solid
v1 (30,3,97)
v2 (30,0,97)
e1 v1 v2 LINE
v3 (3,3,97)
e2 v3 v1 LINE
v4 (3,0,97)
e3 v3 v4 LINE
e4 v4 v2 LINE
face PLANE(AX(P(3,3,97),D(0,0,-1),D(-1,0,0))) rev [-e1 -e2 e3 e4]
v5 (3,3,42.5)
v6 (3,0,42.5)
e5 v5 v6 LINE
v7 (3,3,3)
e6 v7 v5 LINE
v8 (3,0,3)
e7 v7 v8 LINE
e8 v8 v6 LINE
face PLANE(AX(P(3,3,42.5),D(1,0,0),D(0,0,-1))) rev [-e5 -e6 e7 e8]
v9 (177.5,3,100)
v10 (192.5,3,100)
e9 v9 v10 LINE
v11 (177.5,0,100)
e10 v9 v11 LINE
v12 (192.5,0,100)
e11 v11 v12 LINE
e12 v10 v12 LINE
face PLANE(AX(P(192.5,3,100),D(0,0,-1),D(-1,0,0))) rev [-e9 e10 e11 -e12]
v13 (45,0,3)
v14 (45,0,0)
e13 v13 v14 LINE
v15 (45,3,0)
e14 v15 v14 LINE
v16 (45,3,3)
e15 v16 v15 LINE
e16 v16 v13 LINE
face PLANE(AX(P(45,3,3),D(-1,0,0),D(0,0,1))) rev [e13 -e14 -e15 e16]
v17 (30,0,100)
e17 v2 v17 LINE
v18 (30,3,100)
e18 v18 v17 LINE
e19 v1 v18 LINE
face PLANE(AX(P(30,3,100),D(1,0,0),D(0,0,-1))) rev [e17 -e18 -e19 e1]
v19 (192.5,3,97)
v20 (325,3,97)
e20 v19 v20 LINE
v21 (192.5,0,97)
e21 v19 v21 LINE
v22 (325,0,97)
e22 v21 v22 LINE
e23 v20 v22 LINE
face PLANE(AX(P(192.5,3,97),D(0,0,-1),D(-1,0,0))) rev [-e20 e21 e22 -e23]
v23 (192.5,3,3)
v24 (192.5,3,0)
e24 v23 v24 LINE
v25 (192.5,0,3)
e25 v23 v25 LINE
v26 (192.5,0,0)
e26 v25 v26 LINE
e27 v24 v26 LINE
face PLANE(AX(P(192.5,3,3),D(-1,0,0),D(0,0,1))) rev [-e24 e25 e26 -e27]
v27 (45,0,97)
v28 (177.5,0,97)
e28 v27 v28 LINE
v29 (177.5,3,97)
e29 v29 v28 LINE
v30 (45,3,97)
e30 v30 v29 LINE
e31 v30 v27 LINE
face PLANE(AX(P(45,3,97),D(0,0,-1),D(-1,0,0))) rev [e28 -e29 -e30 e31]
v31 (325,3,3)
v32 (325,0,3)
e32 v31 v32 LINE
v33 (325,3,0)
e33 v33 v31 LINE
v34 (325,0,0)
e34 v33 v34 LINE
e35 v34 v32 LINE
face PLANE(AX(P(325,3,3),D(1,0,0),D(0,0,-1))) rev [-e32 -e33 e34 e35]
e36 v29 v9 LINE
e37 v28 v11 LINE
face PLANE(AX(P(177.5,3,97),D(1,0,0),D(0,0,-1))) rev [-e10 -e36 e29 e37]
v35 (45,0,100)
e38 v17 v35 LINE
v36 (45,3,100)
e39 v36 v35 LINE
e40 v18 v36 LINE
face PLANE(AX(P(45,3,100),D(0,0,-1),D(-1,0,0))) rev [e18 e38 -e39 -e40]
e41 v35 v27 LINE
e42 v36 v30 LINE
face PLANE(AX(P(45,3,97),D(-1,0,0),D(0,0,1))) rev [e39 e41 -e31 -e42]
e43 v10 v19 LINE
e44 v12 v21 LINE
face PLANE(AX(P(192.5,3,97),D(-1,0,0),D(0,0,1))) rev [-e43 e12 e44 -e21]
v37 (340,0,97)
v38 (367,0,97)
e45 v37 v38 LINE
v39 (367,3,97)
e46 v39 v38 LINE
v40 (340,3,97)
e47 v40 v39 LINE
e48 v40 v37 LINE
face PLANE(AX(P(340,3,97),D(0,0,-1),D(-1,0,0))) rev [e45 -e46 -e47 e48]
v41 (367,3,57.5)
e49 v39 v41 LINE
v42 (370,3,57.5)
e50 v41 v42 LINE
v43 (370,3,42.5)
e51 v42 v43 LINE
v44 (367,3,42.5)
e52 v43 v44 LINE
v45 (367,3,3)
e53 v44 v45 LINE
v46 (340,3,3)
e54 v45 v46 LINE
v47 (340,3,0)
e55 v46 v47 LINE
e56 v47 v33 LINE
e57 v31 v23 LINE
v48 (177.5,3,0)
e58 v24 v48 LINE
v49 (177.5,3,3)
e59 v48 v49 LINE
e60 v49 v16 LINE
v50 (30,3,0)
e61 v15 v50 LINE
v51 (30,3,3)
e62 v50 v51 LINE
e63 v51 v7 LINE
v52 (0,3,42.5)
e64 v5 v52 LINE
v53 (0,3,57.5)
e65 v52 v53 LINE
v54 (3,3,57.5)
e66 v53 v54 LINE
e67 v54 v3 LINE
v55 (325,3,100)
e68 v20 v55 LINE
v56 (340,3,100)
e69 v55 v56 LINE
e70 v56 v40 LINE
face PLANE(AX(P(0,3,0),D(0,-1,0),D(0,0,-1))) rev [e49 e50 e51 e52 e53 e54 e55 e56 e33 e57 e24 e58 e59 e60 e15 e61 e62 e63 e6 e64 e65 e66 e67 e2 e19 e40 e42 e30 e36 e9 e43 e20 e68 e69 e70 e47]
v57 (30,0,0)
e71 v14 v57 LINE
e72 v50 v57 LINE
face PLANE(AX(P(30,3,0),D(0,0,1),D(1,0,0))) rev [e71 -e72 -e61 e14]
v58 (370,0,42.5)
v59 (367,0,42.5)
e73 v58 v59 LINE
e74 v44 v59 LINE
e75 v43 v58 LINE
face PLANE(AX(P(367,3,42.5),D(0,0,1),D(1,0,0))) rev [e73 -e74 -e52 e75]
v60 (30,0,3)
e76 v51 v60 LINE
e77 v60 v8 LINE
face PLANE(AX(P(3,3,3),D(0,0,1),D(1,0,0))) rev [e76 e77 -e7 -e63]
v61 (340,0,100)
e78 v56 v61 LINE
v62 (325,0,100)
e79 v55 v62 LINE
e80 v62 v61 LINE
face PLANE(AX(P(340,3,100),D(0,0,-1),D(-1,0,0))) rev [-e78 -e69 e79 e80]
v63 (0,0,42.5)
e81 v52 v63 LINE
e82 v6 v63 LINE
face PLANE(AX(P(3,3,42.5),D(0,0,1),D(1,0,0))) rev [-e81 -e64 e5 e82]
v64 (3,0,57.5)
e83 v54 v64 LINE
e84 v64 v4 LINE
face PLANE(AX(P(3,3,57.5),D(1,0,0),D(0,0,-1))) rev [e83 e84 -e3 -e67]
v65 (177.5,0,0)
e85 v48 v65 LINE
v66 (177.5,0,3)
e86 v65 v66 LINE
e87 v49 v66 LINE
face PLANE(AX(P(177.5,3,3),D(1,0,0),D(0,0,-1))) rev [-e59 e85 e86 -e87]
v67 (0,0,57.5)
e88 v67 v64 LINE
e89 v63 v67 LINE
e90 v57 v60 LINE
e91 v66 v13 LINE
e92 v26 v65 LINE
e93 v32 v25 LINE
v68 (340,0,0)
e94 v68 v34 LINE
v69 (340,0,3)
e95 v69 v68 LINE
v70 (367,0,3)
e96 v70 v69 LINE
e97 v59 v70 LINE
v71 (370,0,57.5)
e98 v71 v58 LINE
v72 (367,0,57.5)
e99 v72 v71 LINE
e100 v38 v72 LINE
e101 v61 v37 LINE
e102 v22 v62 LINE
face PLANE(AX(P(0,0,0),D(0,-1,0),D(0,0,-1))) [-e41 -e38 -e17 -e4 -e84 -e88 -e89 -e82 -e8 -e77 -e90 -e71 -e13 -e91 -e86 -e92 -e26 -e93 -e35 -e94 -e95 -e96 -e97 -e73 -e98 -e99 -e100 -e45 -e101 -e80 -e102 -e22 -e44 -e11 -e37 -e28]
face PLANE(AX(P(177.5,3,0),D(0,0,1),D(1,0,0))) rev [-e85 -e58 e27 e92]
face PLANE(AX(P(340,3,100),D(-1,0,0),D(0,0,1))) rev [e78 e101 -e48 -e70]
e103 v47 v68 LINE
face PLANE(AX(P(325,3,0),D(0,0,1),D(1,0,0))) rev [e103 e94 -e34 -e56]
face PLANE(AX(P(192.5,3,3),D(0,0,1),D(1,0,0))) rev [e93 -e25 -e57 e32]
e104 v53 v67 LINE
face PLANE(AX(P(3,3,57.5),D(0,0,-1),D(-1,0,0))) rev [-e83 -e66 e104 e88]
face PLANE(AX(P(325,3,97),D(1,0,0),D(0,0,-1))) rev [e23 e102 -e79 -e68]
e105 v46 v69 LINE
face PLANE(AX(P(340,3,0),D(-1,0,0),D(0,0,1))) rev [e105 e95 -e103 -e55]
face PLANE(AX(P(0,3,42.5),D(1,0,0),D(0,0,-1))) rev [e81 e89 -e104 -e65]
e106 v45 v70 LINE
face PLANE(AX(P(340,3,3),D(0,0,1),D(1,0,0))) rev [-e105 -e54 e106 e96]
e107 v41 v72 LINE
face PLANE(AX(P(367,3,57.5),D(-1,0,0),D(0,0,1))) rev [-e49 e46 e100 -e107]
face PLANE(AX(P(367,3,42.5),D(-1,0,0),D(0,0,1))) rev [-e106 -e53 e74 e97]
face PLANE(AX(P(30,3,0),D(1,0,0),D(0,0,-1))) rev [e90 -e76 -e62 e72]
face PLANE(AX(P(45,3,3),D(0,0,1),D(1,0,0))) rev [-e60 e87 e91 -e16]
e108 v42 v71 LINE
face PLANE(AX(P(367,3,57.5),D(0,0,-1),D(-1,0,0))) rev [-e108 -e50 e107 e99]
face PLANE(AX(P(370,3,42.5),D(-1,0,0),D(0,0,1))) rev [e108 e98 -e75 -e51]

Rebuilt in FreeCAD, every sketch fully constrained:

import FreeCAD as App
import Part
import Sketcher


def add_polygon(sketch, points):
    """Adds a closed chain of lines whose ends are joined by coincident constraints."""
    first, n = sketch.GeometryCount, len(points)
    for a, b in zip(points, points[1:] + points[:1]):
        sketch.addGeometry(Part.LineSegment(App.Vector(*a, 0), App.Vector(*b, 0)), False)
    for i in range(n):
        sketch.addConstraint(Sketcher.Constraint("Coincident", first + i, 2, first + (i + 1) % n, 1))

doc = App.newDocument("Part")
body = doc.addObject("PartDesign::Body", "Body")

sketch1 = body.newObject("Sketcher::SketchObject", "Sketch")
sketch1.AttachmentSupport = (doc.getObject("XZ_Plane"), [""])
sketch1.MapMode = "FlatFace"
add_polygon(sketch1, [(340, 100), (340, 97), (367, 97), (367, 57.5), (370, 57.5), (370, 42.5), (367, 42.5), (367, 3), (340, 3), (340, 0), (325, 0), (325, 3), (192.5, 3), (192.5, 0), (177.5, 0), (177.5, 3), (45, 3), (45, 0), (30, 0), (30, 3), (3, 3), (3, 42.5), (0, 42.5), (0, 57.5), (3, 57.5), (3, 97), (30, 97), (30, 100), (45, 100), (45, 97), (177.5, 97), (177.5, 100), (192.5, 100), (192.5, 97), (325, 97), (325, 100)])
sketch1.addConstraint(Sketcher.Constraint("Vertical", 0))
sketch1.addConstraint(Sketcher.Constraint("Horizontal", 1))
sketch1.addConstraint(Sketcher.Constraint("Vertical", 2))
sketch1.addConstraint(Sketcher.Constraint("Horizontal", 3))
sketch1.addConstraint(Sketcher.Constraint("Vertical", 4))
sketch1.addConstraint(Sketcher.Constraint("Horizontal", 5))
sketch1.addConstraint(Sketcher.Constraint("Vertical", 6))
sketch1.addConstraint(Sketcher.Constraint("Horizontal", 7))
sketch1.addConstraint(Sketcher.Constraint("Vertical", 8))
sketch1.addConstraint(Sketcher.Constraint("Horizontal", 9))
sketch1.addConstraint(Sketcher.Constraint("Vertical", 10))
sketch1.addConstraint(Sketcher.Constraint("Horizontal", 11))
sketch1.addConstraint(Sketcher.Constraint("Vertical", 12))
sketch1.addConstraint(Sketcher.Constraint("Horizontal", 13))
sketch1.addConstraint(Sketcher.Constraint("Vertical", 14))
sketch1.addConstraint(Sketcher.Constraint("Horizontal", 15))
sketch1.addConstraint(Sketcher.Constraint("Vertical", 16))
sketch1.addConstraint(Sketcher.Constraint("Horizontal", 17))
sketch1.addConstraint(Sketcher.Constraint("Vertical", 18))
sketch1.addConstraint(Sketcher.Constraint("Horizontal", 19))
sketch1.addConstraint(Sketcher.Constraint("Vertical", 20))
sketch1.addConstraint(Sketcher.Constraint("Horizontal", 21))
sketch1.addConstraint(Sketcher.Constraint("Vertical", 22))
sketch1.addConstraint(Sketcher.Constraint("Horizontal", 23))
sketch1.addConstraint(Sketcher.Constraint("Vertical", 24))
sketch1.addConstraint(Sketcher.Constraint("Horizontal", 25))
sketch1.addConstraint(Sketcher.Constraint("Vertical", 26))
sketch1.addConstraint(Sketcher.Constraint("Horizontal", 27))
sketch1.addConstraint(Sketcher.Constraint("Vertical", 28))
sketch1.addConstraint(Sketcher.Constraint("Horizontal", 29))
sketch1.addConstraint(Sketcher.Constraint("Vertical", 30))
sketch1.addConstraint(Sketcher.Constraint("Horizontal", 31))
sketch1.addConstraint(Sketcher.Constraint("Vertical", 32))
sketch1.addConstraint(Sketcher.Constraint("Horizontal", 33))
sketch1.addConstraint(Sketcher.Constraint("Vertical", 34))
sketch1.addConstraint(Sketcher.Constraint("Horizontal", 35))
sketch1.addConstraint(Sketcher.Constraint("PointOnObject", 8, 2, -1))
sketch1.addConstraint(Sketcher.Constraint("PointOnObject", 12, 2, -1))
sketch1.addConstraint(Sketcher.Constraint("PointOnObject", 16, 2, -1))
sketch1.addConstraint(Sketcher.Constraint("PointOnObject", 21, 2, -2))
sketch1.addConstraint(Sketcher.Constraint("Horizontal", 7, 2, 10, 2))
sketch1.addConstraint(Sketcher.Constraint("Horizontal", 11, 2, 14, 2))
sketch1.addConstraint(Sketcher.Constraint("Horizontal", 15, 2, 18, 2))
sketch1.addConstraint(Sketcher.Constraint("Horizontal", 5, 2, 20, 2))
sketch1.addConstraint(Sketcher.Constraint("Horizontal", 3, 2, 22, 2))
sketch1.addConstraint(Sketcher.Constraint("Horizontal", 1, 2, 24, 2))
sketch1.addConstraint(Sketcher.Constraint("Horizontal", 25, 2, 28, 2))
sketch1.addConstraint(Sketcher.Constraint("Horizontal", 27, 2, 30, 2))
sketch1.addConstraint(Sketcher.Constraint("Horizontal", 29, 2, 32, 2))
sketch1.addConstraint(Sketcher.Constraint("Horizontal", 31, 2, 34, 2))
sketch1.addConstraint(Sketcher.Constraint("Vertical", 2, 2, 5, 2))
sketch1.addConstraint(Sketcher.Constraint("Vertical", 0, 2, 7, 2))
sketch1.addConstraint(Sketcher.Constraint("Vertical", 20, 2, 23, 2))
sketch1.addConstraint(Sketcher.Constraint("Vertical", 18, 2, 25, 2))
sketch1.addConstraint(Sketcher.Constraint("Vertical", 16, 2, 27, 2))
sketch1.addConstraint(Sketcher.Constraint("Vertical", 14, 2, 29, 2))
sketch1.addConstraint(Sketcher.Constraint("Vertical", 12, 2, 31, 2))
sketch1.addConstraint(Sketcher.Constraint("Vertical", 10, 2, 33, 2))
sketch1.addConstraint(Sketcher.Constraint("Equal", 9, 13))
sketch1.addConstraint(Sketcher.Constraint("Equal", 11, 15))
sketch1.addConstraint(Sketcher.Constraint("Equal", 13, 17))
sketch1.addConstraint(Sketcher.Constraint("Equal", 7, 19))
sketch1.addConstraint(Sketcher.Constraint("Equal", 5, 21))
sketch1.addConstraint(Sketcher.Constraint("Equal", 23, 0))
sketch1.addConstraint(Sketcher.Constraint("Equal", 35, 4))
sketch1.addConstraint(Sketcher.Constraint("Equal", 2, 6))
sketch1.addConstraint(Sketcher.Constraint("Equal", 0, 8))
sketch1.addConstraint(Sketcher.Constraint("DistanceX", 1, 1, 1, 2, 27.0))
sketch1.addConstraint(Sketcher.Constraint("DistanceX", 3, 1, 3, 2, 3.0))
sketch1.addConstraint(Sketcher.Constraint("DistanceX", 9, 2, 9, 1, 15.0))
sketch1.addConstraint(Sketcher.Constraint("DistanceX", 11, 2, 11, 1, 132.5))
sketch1.addConstraint(Sketcher.Constraint("DistanceY", 2, 2, 2, 1, 39.5))
pad1 = body.newObject("PartDesign::Pad", "Pad")
pad1.Profile = sketch1
pad1.Length = 3
pad1.Reversed = True

doc.recompute()
